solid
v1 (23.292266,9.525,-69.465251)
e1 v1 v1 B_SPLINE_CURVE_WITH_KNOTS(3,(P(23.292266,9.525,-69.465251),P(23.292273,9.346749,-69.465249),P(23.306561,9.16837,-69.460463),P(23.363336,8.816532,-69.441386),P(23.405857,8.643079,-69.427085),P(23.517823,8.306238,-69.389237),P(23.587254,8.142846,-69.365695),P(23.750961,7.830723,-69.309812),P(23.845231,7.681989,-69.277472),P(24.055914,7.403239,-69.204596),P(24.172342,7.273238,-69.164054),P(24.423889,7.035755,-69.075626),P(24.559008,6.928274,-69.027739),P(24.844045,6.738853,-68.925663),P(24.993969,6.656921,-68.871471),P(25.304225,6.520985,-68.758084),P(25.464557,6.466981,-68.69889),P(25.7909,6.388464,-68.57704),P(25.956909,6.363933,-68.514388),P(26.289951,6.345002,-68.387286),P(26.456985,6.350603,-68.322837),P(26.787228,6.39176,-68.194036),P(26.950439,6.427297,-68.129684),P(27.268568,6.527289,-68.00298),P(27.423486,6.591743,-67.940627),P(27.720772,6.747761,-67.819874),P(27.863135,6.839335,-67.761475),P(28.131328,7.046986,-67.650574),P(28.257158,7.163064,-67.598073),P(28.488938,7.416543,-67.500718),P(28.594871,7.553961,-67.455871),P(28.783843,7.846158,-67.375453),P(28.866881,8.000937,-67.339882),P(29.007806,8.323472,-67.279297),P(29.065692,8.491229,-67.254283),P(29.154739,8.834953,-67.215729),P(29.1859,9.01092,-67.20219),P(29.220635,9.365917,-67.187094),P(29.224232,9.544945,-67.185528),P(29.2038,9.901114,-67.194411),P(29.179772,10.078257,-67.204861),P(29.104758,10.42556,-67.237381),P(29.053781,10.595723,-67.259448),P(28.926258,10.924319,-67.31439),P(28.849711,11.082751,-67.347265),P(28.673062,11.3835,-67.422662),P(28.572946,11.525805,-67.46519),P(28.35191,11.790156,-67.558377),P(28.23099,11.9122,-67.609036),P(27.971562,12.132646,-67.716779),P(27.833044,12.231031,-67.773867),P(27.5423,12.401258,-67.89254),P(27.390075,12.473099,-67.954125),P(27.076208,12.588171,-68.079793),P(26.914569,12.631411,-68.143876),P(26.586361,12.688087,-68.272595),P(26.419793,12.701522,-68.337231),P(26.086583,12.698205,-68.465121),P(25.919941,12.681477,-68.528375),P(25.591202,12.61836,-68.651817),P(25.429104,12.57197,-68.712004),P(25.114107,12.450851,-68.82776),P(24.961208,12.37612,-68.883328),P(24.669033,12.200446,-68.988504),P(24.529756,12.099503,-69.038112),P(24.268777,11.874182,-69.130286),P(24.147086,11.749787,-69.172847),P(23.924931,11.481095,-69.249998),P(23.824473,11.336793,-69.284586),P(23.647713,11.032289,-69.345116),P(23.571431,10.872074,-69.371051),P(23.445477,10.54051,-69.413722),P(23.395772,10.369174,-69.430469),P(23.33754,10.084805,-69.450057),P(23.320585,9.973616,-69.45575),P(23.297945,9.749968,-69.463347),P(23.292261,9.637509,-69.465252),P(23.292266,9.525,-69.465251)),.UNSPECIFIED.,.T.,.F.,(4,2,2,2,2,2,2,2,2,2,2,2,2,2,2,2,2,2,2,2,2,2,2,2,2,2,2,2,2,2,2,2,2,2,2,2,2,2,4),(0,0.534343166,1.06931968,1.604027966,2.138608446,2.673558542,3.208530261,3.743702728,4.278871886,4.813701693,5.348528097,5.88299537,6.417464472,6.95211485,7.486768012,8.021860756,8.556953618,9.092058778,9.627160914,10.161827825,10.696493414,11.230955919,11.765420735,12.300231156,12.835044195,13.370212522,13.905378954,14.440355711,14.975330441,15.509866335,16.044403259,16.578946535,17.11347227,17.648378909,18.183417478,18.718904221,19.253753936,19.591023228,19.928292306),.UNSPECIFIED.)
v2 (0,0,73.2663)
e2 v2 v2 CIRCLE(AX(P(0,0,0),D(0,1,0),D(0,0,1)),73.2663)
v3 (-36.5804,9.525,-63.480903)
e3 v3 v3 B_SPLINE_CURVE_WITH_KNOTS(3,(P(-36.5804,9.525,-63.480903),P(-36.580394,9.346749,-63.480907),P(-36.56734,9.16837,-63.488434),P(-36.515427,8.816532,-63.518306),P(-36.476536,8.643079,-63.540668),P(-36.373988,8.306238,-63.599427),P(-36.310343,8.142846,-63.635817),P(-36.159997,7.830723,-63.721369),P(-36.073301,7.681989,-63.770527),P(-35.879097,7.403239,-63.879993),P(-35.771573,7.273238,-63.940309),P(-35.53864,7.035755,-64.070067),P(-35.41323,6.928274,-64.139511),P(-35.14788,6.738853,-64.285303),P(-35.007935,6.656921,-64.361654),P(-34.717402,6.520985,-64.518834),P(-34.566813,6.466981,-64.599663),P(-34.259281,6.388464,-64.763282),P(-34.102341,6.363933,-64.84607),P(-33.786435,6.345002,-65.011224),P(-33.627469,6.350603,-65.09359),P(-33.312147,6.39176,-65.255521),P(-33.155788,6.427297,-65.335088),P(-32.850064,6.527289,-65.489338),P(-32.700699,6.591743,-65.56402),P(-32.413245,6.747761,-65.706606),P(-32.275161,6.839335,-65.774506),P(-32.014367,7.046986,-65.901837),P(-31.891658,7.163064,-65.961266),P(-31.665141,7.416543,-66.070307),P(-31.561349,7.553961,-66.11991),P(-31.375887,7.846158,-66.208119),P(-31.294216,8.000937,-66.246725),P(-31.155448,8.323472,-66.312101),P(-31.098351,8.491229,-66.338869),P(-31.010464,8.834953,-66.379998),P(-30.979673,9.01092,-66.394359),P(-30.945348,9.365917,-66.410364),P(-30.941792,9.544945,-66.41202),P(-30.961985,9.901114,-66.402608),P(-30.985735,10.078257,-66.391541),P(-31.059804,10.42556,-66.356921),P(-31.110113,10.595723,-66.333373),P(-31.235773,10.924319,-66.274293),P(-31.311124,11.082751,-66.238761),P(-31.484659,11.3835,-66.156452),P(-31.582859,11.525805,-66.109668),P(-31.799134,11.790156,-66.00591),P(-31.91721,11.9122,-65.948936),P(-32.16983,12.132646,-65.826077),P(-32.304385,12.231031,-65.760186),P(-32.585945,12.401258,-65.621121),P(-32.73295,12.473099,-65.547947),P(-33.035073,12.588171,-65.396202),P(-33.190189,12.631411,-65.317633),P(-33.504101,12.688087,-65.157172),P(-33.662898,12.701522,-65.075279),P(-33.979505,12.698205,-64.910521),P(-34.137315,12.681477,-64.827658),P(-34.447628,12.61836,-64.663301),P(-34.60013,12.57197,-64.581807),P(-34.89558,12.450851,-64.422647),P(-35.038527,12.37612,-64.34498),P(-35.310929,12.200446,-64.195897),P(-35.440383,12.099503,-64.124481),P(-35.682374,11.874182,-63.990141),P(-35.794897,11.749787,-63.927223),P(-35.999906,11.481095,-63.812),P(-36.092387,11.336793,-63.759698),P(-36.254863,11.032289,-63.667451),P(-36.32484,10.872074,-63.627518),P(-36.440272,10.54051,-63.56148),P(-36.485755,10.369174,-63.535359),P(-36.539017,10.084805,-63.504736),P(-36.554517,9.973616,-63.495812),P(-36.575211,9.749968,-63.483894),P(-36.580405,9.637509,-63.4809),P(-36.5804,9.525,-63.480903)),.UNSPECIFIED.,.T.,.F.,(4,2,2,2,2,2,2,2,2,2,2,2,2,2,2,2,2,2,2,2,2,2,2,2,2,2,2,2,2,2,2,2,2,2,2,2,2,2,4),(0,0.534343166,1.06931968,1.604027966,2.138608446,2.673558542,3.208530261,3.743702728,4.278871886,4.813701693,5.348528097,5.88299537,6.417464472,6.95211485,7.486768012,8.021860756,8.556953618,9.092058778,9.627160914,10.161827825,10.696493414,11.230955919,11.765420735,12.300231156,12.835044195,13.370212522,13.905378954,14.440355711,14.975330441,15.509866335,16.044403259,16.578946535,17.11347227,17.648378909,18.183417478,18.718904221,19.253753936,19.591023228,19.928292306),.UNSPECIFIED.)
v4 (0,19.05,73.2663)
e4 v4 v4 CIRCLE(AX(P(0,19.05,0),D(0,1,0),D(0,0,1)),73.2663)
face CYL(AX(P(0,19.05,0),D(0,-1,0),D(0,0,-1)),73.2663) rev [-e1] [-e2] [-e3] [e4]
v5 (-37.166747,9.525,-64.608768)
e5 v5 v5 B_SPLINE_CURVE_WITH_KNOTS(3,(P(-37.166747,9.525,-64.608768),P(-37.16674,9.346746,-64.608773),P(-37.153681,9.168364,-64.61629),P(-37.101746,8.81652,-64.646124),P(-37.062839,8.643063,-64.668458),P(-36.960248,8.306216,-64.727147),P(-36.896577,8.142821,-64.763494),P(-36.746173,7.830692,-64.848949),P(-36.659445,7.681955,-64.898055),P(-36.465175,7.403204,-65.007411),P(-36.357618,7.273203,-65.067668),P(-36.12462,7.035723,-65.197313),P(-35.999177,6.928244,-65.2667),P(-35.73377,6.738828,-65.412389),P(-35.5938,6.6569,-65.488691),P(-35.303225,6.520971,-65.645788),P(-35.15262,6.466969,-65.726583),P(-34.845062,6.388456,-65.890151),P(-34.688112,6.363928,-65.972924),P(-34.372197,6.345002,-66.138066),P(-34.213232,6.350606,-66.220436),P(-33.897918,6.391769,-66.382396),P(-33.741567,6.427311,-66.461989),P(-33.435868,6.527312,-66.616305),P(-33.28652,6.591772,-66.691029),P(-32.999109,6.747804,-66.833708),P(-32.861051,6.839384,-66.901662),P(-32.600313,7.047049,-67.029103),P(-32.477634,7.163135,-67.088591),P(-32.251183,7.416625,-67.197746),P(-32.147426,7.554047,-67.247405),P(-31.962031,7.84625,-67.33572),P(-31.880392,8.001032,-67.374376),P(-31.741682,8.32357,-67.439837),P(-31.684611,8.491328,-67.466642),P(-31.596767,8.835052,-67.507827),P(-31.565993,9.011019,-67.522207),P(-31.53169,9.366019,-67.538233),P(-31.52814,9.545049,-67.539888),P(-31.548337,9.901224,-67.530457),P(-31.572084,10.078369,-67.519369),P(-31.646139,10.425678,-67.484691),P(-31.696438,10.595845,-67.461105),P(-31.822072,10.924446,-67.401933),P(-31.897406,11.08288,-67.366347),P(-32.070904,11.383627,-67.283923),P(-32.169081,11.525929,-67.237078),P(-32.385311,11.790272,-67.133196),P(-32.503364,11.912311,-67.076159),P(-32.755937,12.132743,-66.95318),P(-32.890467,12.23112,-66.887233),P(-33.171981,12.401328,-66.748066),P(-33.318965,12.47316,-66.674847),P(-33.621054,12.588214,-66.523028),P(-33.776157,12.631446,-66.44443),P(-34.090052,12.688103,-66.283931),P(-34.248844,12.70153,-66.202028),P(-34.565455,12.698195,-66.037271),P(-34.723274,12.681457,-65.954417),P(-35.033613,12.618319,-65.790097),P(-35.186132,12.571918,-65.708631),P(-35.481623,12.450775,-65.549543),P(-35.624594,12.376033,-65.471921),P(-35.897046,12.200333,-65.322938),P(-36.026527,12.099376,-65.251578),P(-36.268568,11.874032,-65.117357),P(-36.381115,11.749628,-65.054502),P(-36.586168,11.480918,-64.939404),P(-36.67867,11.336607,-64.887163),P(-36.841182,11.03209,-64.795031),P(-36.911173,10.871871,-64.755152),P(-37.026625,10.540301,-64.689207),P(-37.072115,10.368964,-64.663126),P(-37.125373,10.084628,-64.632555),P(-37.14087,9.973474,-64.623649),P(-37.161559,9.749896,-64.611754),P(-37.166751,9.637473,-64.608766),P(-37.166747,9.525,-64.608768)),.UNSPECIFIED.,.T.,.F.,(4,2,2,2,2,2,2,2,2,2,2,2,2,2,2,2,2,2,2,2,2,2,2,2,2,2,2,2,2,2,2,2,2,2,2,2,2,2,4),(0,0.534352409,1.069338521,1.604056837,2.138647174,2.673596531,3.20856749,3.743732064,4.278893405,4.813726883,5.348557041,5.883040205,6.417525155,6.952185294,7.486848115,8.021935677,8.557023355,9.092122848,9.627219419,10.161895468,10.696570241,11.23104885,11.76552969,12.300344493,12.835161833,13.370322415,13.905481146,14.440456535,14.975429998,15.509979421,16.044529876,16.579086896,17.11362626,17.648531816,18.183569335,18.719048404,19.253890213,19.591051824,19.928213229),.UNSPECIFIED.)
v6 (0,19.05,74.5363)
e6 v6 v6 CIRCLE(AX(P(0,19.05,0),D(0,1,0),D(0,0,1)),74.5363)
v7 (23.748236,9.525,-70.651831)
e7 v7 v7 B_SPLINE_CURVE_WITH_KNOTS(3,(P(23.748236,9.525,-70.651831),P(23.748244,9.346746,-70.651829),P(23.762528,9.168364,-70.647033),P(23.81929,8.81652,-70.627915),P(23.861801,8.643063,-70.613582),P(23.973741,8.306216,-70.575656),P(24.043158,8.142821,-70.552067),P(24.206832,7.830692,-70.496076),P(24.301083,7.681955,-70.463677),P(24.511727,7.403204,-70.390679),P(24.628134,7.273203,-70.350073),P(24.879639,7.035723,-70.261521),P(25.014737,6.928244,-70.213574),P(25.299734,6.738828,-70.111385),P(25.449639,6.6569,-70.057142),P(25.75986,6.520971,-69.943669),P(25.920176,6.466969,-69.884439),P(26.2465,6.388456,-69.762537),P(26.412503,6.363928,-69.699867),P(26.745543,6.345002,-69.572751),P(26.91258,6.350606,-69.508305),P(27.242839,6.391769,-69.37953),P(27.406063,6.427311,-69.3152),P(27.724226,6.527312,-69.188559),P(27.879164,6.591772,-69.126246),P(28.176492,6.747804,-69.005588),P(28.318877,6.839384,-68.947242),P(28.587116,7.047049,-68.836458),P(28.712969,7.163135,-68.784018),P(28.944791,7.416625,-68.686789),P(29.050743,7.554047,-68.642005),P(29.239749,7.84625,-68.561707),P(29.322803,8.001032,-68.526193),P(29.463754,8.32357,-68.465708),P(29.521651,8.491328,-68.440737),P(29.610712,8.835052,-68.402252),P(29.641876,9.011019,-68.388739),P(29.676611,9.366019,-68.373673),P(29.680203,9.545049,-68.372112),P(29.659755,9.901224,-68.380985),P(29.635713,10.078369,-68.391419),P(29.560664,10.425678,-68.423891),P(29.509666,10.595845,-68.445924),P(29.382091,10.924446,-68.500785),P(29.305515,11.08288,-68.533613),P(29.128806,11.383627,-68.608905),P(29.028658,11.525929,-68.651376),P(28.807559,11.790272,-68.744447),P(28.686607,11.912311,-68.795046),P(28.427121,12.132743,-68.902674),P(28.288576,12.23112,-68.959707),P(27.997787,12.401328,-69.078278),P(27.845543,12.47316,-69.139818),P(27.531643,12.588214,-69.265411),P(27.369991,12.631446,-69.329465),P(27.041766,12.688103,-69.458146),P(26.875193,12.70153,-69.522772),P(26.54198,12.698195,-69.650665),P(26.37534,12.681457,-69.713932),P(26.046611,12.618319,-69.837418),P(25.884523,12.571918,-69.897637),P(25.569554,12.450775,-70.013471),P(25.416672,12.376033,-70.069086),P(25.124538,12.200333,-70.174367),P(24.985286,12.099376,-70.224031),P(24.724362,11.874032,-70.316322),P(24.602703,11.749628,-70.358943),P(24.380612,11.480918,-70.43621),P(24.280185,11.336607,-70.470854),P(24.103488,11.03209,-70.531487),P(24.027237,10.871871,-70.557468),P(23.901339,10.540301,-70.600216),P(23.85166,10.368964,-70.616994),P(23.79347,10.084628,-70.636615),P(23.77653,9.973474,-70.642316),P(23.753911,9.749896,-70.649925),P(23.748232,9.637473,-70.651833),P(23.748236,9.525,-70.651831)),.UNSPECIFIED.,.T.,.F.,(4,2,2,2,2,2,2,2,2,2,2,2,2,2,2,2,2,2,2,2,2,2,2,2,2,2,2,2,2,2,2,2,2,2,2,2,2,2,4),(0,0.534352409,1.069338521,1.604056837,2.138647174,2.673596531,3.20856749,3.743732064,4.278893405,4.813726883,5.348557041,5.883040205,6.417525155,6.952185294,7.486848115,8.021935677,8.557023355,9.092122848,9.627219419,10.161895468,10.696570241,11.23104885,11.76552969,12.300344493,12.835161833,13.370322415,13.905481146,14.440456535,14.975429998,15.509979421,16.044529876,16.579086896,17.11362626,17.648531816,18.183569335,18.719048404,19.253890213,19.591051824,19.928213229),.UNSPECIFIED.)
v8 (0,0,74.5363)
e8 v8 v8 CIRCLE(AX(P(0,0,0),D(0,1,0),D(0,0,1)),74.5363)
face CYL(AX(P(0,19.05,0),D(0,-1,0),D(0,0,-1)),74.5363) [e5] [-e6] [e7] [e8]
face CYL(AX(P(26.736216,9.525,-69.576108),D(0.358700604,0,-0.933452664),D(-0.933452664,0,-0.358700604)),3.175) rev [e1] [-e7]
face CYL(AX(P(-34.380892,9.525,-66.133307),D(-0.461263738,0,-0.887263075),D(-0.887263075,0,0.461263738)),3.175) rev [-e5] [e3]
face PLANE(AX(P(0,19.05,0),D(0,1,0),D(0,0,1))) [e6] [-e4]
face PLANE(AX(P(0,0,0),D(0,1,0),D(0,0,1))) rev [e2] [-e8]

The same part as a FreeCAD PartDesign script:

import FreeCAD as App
import Part
import Sketcher
Q = App.Units.Quantity

doc = App.newDocument("Part")
body = doc.addObject("PartDesign::Body", "Body")

sketch1 = body.newObject("Sketcher::SketchObject", "Sketch")
sketch1.AttachmentSupport = (doc.getObject("XZ_Plane"), [""])
sketch1.MapMode = "FlatFace"
sketch1.addGeometry([
    Part.Circle(App.Vector(0, 0, 0), App.Vector(0, 0, 1), 74.5363),
    Part.Circle(App.Vector(0, 0, 0), App.Vector(0, 0, 1), 73.2663),
], False)
sketch1.addConstraint([
    Sketcher.Constraint("Coincident", 0, 3, -1, 1),
    Sketcher.Constraint("Coincident", 1, 3, -1, 1),
    Sketcher.Constraint("Diameter", 0, Q("5.869 in")),
    Sketcher.Constraint("Diameter", 1, Q("5.769 in")),
])
pad1 = body.newObject("PartDesign::Pad", "Pad")
pad1.Profile = sketch1
pad1.Length = Q("0.75 in")
pad1.Reversed = True

sketch2 = body.newObject("Sketcher::SketchObject", "Sketch001")
sketch2.Placement = App.Placement(App.Vector(-34.380892, 9.525, -66.133307), App.Rotation(App.Vector(-0.887263075, 0, 0.461263738), App.Vector(0, 1, 0), App.Vector(-0.461263738, 0, -0.887263075), "ZXY"))
sketch2.addGeometry(Part.Circle(App.Vector(0, 0, 0), App.Vector(0, 0, 1), 3.175), False)
sketch2.addConstraint([
    Sketcher.Constraint("Coincident", 0, 3, -1, 1),
    Sketcher.Constraint("Diameter", 0, Q("0.25 in")),
])
pocket1 = body.newObject("PartDesign::Pocket", "Pocket")
pocket1.Profile = sketch2
pocket1.Length = 1.338827

sketch3 = body.newObject("Sketcher::SketchObject", "Sketch002")
sketch3.Placement = App.Placement(App.Vector(26.736216, 9.525, -69.576108), App.Rotation(App.Vector(-0.933452575, 0, -0.358700837), App.Vector(0, 1, 0), App.Vector(0.358700837, 0, -0.933452575), "ZXY"))
sketch3.addGeometry(Part.Circle(App.Vector(0, 0, 0), App.Vector(0, 0, 1), 3.175), False)
sketch3.addConstraint([
    Sketcher.Constraint("Coincident", 0, 3, -1, 1),
    Sketcher.Constraint("Diameter", 0, Q("0.25 in")),
])
pocket2 = body.newObject("PartDesign::Pocket", "Pocket001")
pocket2.Profile = sketch3
pocket2.Length = 1.338828

doc.recompute()
